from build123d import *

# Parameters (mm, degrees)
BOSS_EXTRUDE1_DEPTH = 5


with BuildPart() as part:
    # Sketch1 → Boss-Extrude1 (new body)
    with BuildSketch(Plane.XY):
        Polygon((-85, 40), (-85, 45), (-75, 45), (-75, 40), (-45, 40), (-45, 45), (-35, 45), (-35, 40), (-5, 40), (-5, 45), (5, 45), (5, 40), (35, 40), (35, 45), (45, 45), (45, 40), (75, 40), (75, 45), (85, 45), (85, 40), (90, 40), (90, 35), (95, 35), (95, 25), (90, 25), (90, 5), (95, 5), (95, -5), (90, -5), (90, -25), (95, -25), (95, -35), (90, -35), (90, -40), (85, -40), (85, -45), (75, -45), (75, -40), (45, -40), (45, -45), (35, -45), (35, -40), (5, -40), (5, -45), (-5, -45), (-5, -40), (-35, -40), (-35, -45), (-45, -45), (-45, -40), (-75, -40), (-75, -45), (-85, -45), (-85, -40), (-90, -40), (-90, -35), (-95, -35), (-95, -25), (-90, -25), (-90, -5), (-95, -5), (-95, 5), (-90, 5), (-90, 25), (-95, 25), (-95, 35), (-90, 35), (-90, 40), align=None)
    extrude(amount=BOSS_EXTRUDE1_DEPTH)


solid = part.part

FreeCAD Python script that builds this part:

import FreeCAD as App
import Part
import Sketcher
from FreeCAD import Vector

doc = App.newDocument("Part")
body = doc.addObject("PartDesign::Body", "Body")

# Sketch on XY plane
sketch1 = body.newObject("Sketcher::SketchObject", "Sketch")
sketch1.AttachmentSupport = (doc.getObject("XY_Plane"), [""])
sketch1.MapMode = "FlatFace"
sketch1.addGeometry([
    Part.LineSegment(Vector(-85, 45, 0), Vector(-85, 40, 0)),  # 0
    Part.LineSegment(Vector(-85, 40, 0), Vector(-90, 40, 0)),  # 1
    Part.LineSegment(Vector(-90, 40, 0), Vector(-90, 35, 0)),  # 2
    Part.LineSegment(Vector(-90, 35, 0), Vector(-95, 35, 0)),  # 3
    Part.LineSegment(Vector(-95, 35, 0), Vector(-95, 25, 0)),  # 4
    Part.LineSegment(Vector(-95, 25, 0), Vector(-90, 25, 0)),  # 5
    Part.LineSegment(Vector(-90, 25, 0), Vector(-90, 5, 0)),  # 6
    Part.LineSegment(Vector(-90, 5, 0), Vector(-95, 5, 0)),  # 7
    Part.LineSegment(Vector(-95, 5, 0), Vector(-95, -5, 0)),  # 8
    Part.LineSegment(Vector(-95, -5, 0), Vector(-90, -5, 0)),  # 9
    Part.LineSegment(Vector(-90, -5, 0), Vector(-90, -25, 0)),  # 10
    Part.LineSegment(Vector(-90, -25, 0), Vector(-95, -25, 0)),  # 11
    Part.LineSegment(Vector(-95, -25, 0), Vector(-95, -35, 0)),  # 12
    Part.LineSegment(Vector(-95, -35, 0), Vector(-90, -35, 0)),  # 13
    Part.LineSegment(Vector(-90, -35, 0), Vector(-90, -40, 0)),  # 14
    Part.LineSegment(Vector(-90, -40, 0), Vector(-85, -40, 0)),  # 15
    Part.LineSegment(Vector(-85, -40, 0), Vector(-85, -45, 0)),  # 16
    Part.LineSegment(Vector(-85, -45, 0), Vector(-75, -45, 0)),  # 17
    Part.LineSegment(Vector(-75, -45, 0), Vector(-75, -40, 0)),  # 18
    Part.LineSegment(Vector(-75, -40, 0), Vector(-45, -40, 0)),  # 19
    Part.LineSegment(Vector(-45, -40, 0), Vector(-45, -45, 0)),  # 20
    Part.LineSegment(Vector(-45, -45, 0), Vector(-35, -45, 0)),  # 21
    Part.LineSegment(Vector(-35, -45, 0), Vector(-35, -40, 0)),  # 22
    Part.LineSegment(Vector(-35, -40, 0), Vector(-5, -40, 0)),  # 23
    Part.LineSegment(Vector(-5, -40, 0), Vector(-5, -45, 0)),  # 24
    Part.LineSegment(Vector(-5, -45, 0), Vector(5, -45, 0)),  # 25
    Part.LineSegment(Vector(5, -45, 0), Vector(5, -40, 0)),  # 26
    Part.LineSegment(Vector(5, -40, 0), Vector(35, -40, 0)),  # 27
    Part.LineSegment(Vector(35, -40, 0), Vector(35, -45, 0)),  # 28
    Part.LineSegment(Vector(35, -45, 0), Vector(45, -45, 0)),  # 29
    Part.LineSegment(Vector(45, -45, 0), Vector(45, -40, 0)),  # 30
    Part.LineSegment(Vector(45, -40, 0), Vector(75, -40, 0)),  # 31
    Part.LineSegment(Vector(75, -40, 0), Vector(75, -45, 0)),  # 32
    Part.LineSegment(Vector(75, -45, 0), Vector(85, -45, 0)),  # 33
    Part.LineSegment(Vector(85, -45, 0), Vector(85, -40, 0)),  # 34
    Part.LineSegment(Vector(85, -40, 0), Vector(90, -40, 0)),  # 35
    Part.LineSegment(Vector(90, -40, 0), Vector(90, -35, 0)),  # 36
    Part.LineSegment(Vector(90, -35, 0), Vector(95, -35, 0)),  # 37
    Part.LineSegment(Vector(95, -35, 0), Vector(95, -25, 0)),  # 38
    Part.LineSegment(Vector(95, -25, 0), Vector(90, -25, 0)),  # 39
    Part.LineSegment(Vector(90, -25, 0), Vector(90, -5, 0)),  # 40
    Part.LineSegment(Vector(90, -5, 0), Vector(95, -5, 0)),  # 41
    Part.LineSegment(Vector(95, -5, 0), Vector(95, 5, 0)),  # 42
    Part.LineSegment(Vector(95, 5, 0), Vector(90, 5, 0)),  # 43
    Part.LineSegment(Vector(90, 5, 0), Vector(90, 25, 0)),  # 44
    Part.LineSegment(Vector(90, 25, 0), Vector(95, 25, 0)),  # 45
    Part.LineSegment(Vector(95, 25, 0), Vector(95, 35, 0)),  # 46
    Part.LineSegment(Vector(95, 35, 0), Vector(90, 35, 0)),  # 47
    Part.LineSegment(Vector(90, 35, 0), Vector(90, 40, 0)),  # 48
    Part.LineSegment(Vector(90, 40, 0), Vector(85, 40, 0)),  # 49
    Part.LineSegment(Vector(85, 40, 0), Vector(85, 45, 0)),  # 50
    Part.LineSegment(Vector(85, 45, 0), Vector(75, 45, 0)),  # 51
    Part.LineSegment(Vector(75, 45, 0), Vector(75, 40, 0)),  # 52
    Part.LineSegment(Vector(75, 40, 0), Vector(45, 40, 0)),  # 53
    Part.LineSegment(Vector(45, 40, 0), Vector(45, 45, 0)),  # 54
    Part.LineSegment(Vector(45, 45, 0), Vector(35, 45, 0)),  # 55
    Part.LineSegment(Vector(35, 45, 0), Vector(35, 40, 0)),  # 56
    Part.LineSegment(Vector(35, 40, 0), Vector(5, 40, 0)),  # 57
    Part.LineSegment(Vector(5, 40, 0), Vector(5, 45, 0)),  # 58
    Part.LineSegment(Vector(5, 45, 0), Vector(-5, 45, 0)),  # 59
    Part.LineSegment(Vector(-5, 45, 0), Vector(-5, 40, 0)),  # 60
    Part.LineSegment(Vector(-5, 40, 0), Vector(-35, 40, 0)),  # 61
    Part.LineSegment(Vector(-35, 40, 0), Vector(-35, 45, 0)),  # 62
    Part.LineSegment(Vector(-35, 45, 0), Vector(-45, 45, 0)),  # 63
    Part.LineSegment(Vector(-45, 45, 0), Vector(-45, 40, 0)),  # 64
    Part.LineSegment(Vector(-45, 40, 0), Vector(-75, 40, 0)),  # 65
    Part.LineSegment(Vector(-75, 40, 0), Vector(-75, 45, 0)),  # 66
    Part.LineSegment(Vector(-75, 45, 0), Vector(-85, 45, 0)),  # 67
], False)
sketch1.addConstraint([
    Sketcher.Constraint("Coincident", 0, 2, 1, 1),
    Sketcher.Constraint("Coincident", 1, 2, 2, 1),
    Sketcher.Constraint("Coincident", 2, 2, 3, 1),
    Sketcher.Constraint("Coincident", 3, 2, 4, 1),
    Sketcher.Constraint("Coincident", 4, 2, 5, 1),
    Sketcher.Constraint("Coincident", 5, 2, 6, 1),
    Sketcher.Constraint("Coincident", 6, 2, 7, 1),
    Sketcher.Constraint("Coincident", 7, 2, 8, 1),
    Sketcher.Constraint("Coincident", 8, 2, 9, 1),
    Sketcher.Constraint("Coincident", 9, 2, 10, 1),
    Sketcher.Constraint("Coincident", 10, 2, 11, 1),
    Sketcher.Constraint("Coincident", 11, 2, 12, 1),
    Sketcher.Constraint("Coincident", 12, 2, 13, 1),
    Sketcher.Constraint("Coincident", 13, 2, 14, 1),
    Sketcher.Constraint("Coincident", 14, 2, 15, 1),
    Sketcher.Constraint("Coincident", 15, 2, 16, 1),
    Sketcher.Constraint("Coincident", 16, 2, 17, 1),
    Sketcher.Constraint("Coincident", 17, 2, 18, 1),
    Sketcher.Constraint("Coincident", 18, 2, 19, 1),
    Sketcher.Constraint("Coincident", 19, 2, 20, 1),
    Sketcher.Constraint("Coincident", 20, 2, 21, 1),
    Sketcher.Constraint("Coincident", 21, 2, 22, 1),
    Sketcher.Constraint("Coincident", 22, 2, 23, 1),
    Sketcher.Constraint("Coincident", 23, 2, 24, 1),
    Sketcher.Constraint("Coincident", 24, 2, 25, 1),
    Sketcher.Constraint("Coincident", 25, 2, 26, 1),
    Sketcher.Constraint("Coincident", 26, 2, 27, 1),
    Sketcher.Constraint("Coincident", 27, 2, 28, 1),
    Sketcher.Constraint("Coincident", 28, 2, 29, 1),
    Sketcher.Constraint("Coincident", 29, 2, 30, 1),
    Sketcher.Constraint("Coincident", 30, 2, 31, 1),
    Sketcher.Constraint("Coincident", 31, 2, 32, 1),
    Sketcher.Constraint("Coincident", 32, 2, 33, 1),
    Sketcher.Constraint("Coincident", 33, 2, 34, 1),
    Sketcher.Constraint("Coincident", 34, 2, 35, 1),
    Sketcher.Constraint("Coincident", 35, 2, 36, 1),
    Sketcher.Constraint("Coincident", 36, 2, 37, 1),
    Sketcher.Constraint("Coincident", 37, 2, 38, 1),
    Sketcher.Constraint("Coincident", 38, 2, 39, 1),
    Sketcher.Constraint("Coincident", 39, 2, 40, 1),
    Sketcher.Constraint("Coincident", 40, 2, 41, 1),
    Sketcher.Constraint("Coincident", 41, 2, 42, 1),
    Sketcher.Constraint("Coincident", 42, 2, 43, 1),
    Sketcher.Constraint("Coincident", 43, 2, 44, 1),
    Sketcher.Constraint("Coincident", 44, 2, 45, 1),
    Sketcher.Constraint("Coincident", 45, 2, 46, 1),
    Sketcher.Constraint("Coincident", 46, 2, 47, 1),
    Sketcher.Constraint("Coincident", 47, 2, 48, 1),
    Sketcher.Constraint("Coincident", 48, 2, 49, 1),
    Sketcher.Constraint("Coincident", 49, 2, 50, 1),
    Sketcher.Constraint("Coincident", 50, 2, 51, 1),
    Sketcher.Constraint("Coincident", 51, 2, 52, 1),
    Sketcher.Constraint("Coincident", 52, 2, 53, 1),
    Sketcher.Constraint("Coincident", 53, 2, 54, 1),
    Sketcher.Constraint("Coincident", 54, 2, 55, 1),
    Sketcher.Constraint("Coincident", 55, 2, 56, 1),
    Sketcher.Constraint("Coincident", 56, 2, 57, 1),
    Sketcher.Constraint("Coincident", 57, 2, 58, 1),
    Sketcher.Constraint("Coincident", 58, 2, 59, 1),
    Sketcher.Constraint("Coincident", 59, 2, 60, 1),
    Sketcher.Constraint("Coincident", 60, 2, 61, 1),
    Sketcher.Constraint("Coincident", 61, 2, 62, 1),
    Sketcher.Constraint("Coincident", 62, 2, 63, 1),
    Sketcher.Constraint("Coincident", 63, 2, 64, 1),
    Sketcher.Constraint("Coincident", 64, 2, 65, 1),
    Sketcher.Constraint("Coincident", 65, 2, 66, 1),
    Sketcher.Constraint("Coincident", 66, 2, 67, 1),
    Sketcher.Constraint("Coincident", 67, 2, 0, 1),
    Sketcher.Constraint("Vertical", 0),
    Sketcher.Constraint("Horizontal", 1),
    Sketcher.Constraint("Vertical", 2),
    Sketcher.Constraint("Horizontal", 3),
    Sketcher.Constraint("Vertical", 4),
    Sketcher.Constraint("Horizontal", 5),
    Sketcher.Constraint("Vertical", 6),
    Sketcher.Constraint("Horizontal", 7),
    Sketcher.Constraint("Vertical", 8),
    Sketcher.Constraint("Horizontal", 9),
    Sketcher.Constraint("Vertical", 10),
    Sketcher.Constraint("Horizontal", 11),
    Sketcher.Constraint("Vertical", 12),
    Sketcher.Constraint("Horizontal", 13),
    Sketcher.Constraint("Vertical", 14),
    Sketcher.Constraint("Horizontal", 15),
    Sketcher.Constraint("Vertical", 16),
    Sketcher.Constraint("Horizontal", 17),
    Sketcher.Constraint("Vertical", 18),
    Sketcher.Constraint("Horizontal", 19),
    Sketcher.Constraint("Vertical", 20),
    Sketcher.Constraint("Horizontal", 21),
    Sketcher.Constraint("Vertical", 22),
    Sketcher.Constraint("Horizontal", 23),
    Sketcher.Constraint("Vertical", 24),
    Sketcher.Constraint("Horizontal", 25),
    Sketcher.Constraint("Vertical", 26),
    Sketcher.Constraint("Horizontal", 27),
    Sketcher.Constraint("Vertical", 28),
    Sketcher.Constraint("Horizontal", 29),
    Sketcher.Constraint("Vertical", 30),
    Sketcher.Constraint("Horizontal", 31),
    Sketcher.Constraint("Vertical", 32),
    Sketcher.Constraint("Horizontal", 33),
    Sketcher.Constraint("Vertical", 34),
    Sketcher.Constraint("Horizontal", 35),
    Sketcher.Constraint("Vertical", 36),
    Sketcher.Constraint("Horizontal", 37),
    Sketcher.Constraint("Vertical", 38),
    Sketcher.Constraint("Horizontal", 39),
    Sketcher.Constraint("Vertical", 40),
    Sketcher.Constraint("Horizontal", 41),
    Sketcher.Constraint("Vertical", 42),
    Sketcher.Constraint("Horizontal", 43),
    Sketcher.Constraint("Vertical", 44),
    Sketcher.Constraint("Horizontal", 45),
    Sketcher.Constraint("Vertical", 46),
    Sketcher.Constraint("Horizontal", 47),
    Sketcher.Constraint("Vertical", 48),
    Sketcher.Constraint("Horizontal", 49),
    Sketcher.Constraint("Vertical", 50),
    Sketcher.Constraint("Horizontal", 51),
    Sketcher.Constraint("Vertical", 52),
    Sketcher.Constraint("Horizontal", 53),
    Sketcher.Constraint("Vertical", 54),
    Sketcher.Constraint("Horizontal", 55),
    Sketcher.Constraint("Vertical", 56),
    Sketcher.Constraint("Horizontal", 57),
    Sketcher.Constraint("Vertical", 58),
    Sketcher.Constraint("Horizontal", 59),
    Sketcher.Constraint("Vertical", 60),
    Sketcher.Constraint("Horizontal", 61),
    Sketcher.Constraint("Vertical", 62),
    Sketcher.Constraint("Horizontal", 63),
    Sketcher.Constraint("Vertical", 64),
    Sketcher.Constraint("Horizontal", 65),
    Sketcher.Constraint("Vertical", 66),
    Sketcher.Constraint("Horizontal", 67),
    Sketcher.Constraint("Symmetric", 0, 2, 34, 2, -1, 1),
    Sketcher.Constraint("Symmetric", 2, 2, 36, 2, -1, 1),
    Sketcher.Constraint("Symmetric", 4, 2, 38, 2, -1, 1),
    Sketcher.Constraint("Symmetric", 6, 2, 40, 2, -1, 1),
    Sketcher.Constraint("Symmetric", 8, 2, 42, 2, -1, 1),
    Sketcher.Constraint("Symmetric", 10, 2, 44, 2, -1, 1),
    Sketcher.Constraint("Symmetric", 12, 2, 46, 2, -1, 1),
    Sketcher.Constraint("Symmetric", 14, 2, 48, 2, -1, 1),
    Sketcher.Constraint("Symmetric", 16, 2, 50, 2, -1, 1),
    Sketcher.Constraint("Symmetric", 18, 2, 52, 2, -1, 1),
    Sketcher.Constraint("Symmetric", 20, 2, 54, 2, -1, 1),
    Sketcher.Constraint("Symmetric", 22, 2, 56, 2, -1, 1),
    Sketcher.Constraint("Symmetric", 24, 2, 58, 2, -1, 1),
    Sketcher.Constraint("Symmetric", 26, 2, 60, 2, -1, 1),
    Sketcher.Constraint("Symmetric", 28, 2, 62, 2, -1, 1),
    Sketcher.Constraint("Symmetric", 30, 2, 64, 2, -1, 1),
    Sketcher.Constraint("Symmetric", 32, 2, 66, 2, -1, 1),
    Sketcher.Constraint("Symmetric", 23, 2, 26, 2, -2),
    Sketcher.Constraint("Symmetric", 21, 2, 28, 2, -2),
    Sketcher.Constraint("Symmetric", 19, 2, 30, 2, -2),
    Sketcher.Constraint("Symmetric", 17, 2, 32, 2, -2),
    Sketcher.Constraint("Symmetric", 15, 2, 34, 2, -2),
    Sketcher.Constraint("Symmetric", 13, 2, 36, 2, -2),
    Sketcher.Constraint("Symmetric", 11, 2, 38, 2, -2),
    Sketcher.Constraint("Symmetric", 9, 2, 40, 2, -2),
    Sketcher.Constraint("Horizontal", 15, 2, 18, 2),
    Sketcher.Constraint("Horizontal", 17, 2, 20, 2),
    Sketcher.Constraint("Horizontal", 19, 2, 22, 2),
    Sketcher.Constraint("Horizontal", 21, 2, 24, 2),
    Sketcher.Constraint("Vertical", 2, 2, 5, 2),
    Sketcher.Constraint("Vertical", 4, 2, 7, 2),
    Sketcher.Constraint("Equal", 1, 3),
    Sketcher.Constraint("Equal", 17, 21),
    Sketcher.Constraint("Equal", 19, 23),
    Sketcher.Constraint("Equal", 21, 25),
    Sketcher.Constraint("Equal", 49, 0),
    Sketcher.Constraint("Equal", 0, 2),
    Sketcher.Constraint("Equal", 67, 4),
    Sketcher.Constraint("Equal", 4, 8),
    Sketcher.Constraint("DistanceX", 1, 2, 1, 1, 5.0),
    Sketcher.Constraint("DistanceX", 17, 1, 17, 2, 10.0),
    Sketcher.Constraint("DistanceX", 19, 1, 19, 2, 30.0),
    Sketcher.Constraint("DistanceY", 6, 2, 6, 1, 20.0),
])
pad1 = body.newObject("PartDesign::Pad", "Pad")
pad1.Profile = sketch1
pad1.Length = 5

doc.recompute()
